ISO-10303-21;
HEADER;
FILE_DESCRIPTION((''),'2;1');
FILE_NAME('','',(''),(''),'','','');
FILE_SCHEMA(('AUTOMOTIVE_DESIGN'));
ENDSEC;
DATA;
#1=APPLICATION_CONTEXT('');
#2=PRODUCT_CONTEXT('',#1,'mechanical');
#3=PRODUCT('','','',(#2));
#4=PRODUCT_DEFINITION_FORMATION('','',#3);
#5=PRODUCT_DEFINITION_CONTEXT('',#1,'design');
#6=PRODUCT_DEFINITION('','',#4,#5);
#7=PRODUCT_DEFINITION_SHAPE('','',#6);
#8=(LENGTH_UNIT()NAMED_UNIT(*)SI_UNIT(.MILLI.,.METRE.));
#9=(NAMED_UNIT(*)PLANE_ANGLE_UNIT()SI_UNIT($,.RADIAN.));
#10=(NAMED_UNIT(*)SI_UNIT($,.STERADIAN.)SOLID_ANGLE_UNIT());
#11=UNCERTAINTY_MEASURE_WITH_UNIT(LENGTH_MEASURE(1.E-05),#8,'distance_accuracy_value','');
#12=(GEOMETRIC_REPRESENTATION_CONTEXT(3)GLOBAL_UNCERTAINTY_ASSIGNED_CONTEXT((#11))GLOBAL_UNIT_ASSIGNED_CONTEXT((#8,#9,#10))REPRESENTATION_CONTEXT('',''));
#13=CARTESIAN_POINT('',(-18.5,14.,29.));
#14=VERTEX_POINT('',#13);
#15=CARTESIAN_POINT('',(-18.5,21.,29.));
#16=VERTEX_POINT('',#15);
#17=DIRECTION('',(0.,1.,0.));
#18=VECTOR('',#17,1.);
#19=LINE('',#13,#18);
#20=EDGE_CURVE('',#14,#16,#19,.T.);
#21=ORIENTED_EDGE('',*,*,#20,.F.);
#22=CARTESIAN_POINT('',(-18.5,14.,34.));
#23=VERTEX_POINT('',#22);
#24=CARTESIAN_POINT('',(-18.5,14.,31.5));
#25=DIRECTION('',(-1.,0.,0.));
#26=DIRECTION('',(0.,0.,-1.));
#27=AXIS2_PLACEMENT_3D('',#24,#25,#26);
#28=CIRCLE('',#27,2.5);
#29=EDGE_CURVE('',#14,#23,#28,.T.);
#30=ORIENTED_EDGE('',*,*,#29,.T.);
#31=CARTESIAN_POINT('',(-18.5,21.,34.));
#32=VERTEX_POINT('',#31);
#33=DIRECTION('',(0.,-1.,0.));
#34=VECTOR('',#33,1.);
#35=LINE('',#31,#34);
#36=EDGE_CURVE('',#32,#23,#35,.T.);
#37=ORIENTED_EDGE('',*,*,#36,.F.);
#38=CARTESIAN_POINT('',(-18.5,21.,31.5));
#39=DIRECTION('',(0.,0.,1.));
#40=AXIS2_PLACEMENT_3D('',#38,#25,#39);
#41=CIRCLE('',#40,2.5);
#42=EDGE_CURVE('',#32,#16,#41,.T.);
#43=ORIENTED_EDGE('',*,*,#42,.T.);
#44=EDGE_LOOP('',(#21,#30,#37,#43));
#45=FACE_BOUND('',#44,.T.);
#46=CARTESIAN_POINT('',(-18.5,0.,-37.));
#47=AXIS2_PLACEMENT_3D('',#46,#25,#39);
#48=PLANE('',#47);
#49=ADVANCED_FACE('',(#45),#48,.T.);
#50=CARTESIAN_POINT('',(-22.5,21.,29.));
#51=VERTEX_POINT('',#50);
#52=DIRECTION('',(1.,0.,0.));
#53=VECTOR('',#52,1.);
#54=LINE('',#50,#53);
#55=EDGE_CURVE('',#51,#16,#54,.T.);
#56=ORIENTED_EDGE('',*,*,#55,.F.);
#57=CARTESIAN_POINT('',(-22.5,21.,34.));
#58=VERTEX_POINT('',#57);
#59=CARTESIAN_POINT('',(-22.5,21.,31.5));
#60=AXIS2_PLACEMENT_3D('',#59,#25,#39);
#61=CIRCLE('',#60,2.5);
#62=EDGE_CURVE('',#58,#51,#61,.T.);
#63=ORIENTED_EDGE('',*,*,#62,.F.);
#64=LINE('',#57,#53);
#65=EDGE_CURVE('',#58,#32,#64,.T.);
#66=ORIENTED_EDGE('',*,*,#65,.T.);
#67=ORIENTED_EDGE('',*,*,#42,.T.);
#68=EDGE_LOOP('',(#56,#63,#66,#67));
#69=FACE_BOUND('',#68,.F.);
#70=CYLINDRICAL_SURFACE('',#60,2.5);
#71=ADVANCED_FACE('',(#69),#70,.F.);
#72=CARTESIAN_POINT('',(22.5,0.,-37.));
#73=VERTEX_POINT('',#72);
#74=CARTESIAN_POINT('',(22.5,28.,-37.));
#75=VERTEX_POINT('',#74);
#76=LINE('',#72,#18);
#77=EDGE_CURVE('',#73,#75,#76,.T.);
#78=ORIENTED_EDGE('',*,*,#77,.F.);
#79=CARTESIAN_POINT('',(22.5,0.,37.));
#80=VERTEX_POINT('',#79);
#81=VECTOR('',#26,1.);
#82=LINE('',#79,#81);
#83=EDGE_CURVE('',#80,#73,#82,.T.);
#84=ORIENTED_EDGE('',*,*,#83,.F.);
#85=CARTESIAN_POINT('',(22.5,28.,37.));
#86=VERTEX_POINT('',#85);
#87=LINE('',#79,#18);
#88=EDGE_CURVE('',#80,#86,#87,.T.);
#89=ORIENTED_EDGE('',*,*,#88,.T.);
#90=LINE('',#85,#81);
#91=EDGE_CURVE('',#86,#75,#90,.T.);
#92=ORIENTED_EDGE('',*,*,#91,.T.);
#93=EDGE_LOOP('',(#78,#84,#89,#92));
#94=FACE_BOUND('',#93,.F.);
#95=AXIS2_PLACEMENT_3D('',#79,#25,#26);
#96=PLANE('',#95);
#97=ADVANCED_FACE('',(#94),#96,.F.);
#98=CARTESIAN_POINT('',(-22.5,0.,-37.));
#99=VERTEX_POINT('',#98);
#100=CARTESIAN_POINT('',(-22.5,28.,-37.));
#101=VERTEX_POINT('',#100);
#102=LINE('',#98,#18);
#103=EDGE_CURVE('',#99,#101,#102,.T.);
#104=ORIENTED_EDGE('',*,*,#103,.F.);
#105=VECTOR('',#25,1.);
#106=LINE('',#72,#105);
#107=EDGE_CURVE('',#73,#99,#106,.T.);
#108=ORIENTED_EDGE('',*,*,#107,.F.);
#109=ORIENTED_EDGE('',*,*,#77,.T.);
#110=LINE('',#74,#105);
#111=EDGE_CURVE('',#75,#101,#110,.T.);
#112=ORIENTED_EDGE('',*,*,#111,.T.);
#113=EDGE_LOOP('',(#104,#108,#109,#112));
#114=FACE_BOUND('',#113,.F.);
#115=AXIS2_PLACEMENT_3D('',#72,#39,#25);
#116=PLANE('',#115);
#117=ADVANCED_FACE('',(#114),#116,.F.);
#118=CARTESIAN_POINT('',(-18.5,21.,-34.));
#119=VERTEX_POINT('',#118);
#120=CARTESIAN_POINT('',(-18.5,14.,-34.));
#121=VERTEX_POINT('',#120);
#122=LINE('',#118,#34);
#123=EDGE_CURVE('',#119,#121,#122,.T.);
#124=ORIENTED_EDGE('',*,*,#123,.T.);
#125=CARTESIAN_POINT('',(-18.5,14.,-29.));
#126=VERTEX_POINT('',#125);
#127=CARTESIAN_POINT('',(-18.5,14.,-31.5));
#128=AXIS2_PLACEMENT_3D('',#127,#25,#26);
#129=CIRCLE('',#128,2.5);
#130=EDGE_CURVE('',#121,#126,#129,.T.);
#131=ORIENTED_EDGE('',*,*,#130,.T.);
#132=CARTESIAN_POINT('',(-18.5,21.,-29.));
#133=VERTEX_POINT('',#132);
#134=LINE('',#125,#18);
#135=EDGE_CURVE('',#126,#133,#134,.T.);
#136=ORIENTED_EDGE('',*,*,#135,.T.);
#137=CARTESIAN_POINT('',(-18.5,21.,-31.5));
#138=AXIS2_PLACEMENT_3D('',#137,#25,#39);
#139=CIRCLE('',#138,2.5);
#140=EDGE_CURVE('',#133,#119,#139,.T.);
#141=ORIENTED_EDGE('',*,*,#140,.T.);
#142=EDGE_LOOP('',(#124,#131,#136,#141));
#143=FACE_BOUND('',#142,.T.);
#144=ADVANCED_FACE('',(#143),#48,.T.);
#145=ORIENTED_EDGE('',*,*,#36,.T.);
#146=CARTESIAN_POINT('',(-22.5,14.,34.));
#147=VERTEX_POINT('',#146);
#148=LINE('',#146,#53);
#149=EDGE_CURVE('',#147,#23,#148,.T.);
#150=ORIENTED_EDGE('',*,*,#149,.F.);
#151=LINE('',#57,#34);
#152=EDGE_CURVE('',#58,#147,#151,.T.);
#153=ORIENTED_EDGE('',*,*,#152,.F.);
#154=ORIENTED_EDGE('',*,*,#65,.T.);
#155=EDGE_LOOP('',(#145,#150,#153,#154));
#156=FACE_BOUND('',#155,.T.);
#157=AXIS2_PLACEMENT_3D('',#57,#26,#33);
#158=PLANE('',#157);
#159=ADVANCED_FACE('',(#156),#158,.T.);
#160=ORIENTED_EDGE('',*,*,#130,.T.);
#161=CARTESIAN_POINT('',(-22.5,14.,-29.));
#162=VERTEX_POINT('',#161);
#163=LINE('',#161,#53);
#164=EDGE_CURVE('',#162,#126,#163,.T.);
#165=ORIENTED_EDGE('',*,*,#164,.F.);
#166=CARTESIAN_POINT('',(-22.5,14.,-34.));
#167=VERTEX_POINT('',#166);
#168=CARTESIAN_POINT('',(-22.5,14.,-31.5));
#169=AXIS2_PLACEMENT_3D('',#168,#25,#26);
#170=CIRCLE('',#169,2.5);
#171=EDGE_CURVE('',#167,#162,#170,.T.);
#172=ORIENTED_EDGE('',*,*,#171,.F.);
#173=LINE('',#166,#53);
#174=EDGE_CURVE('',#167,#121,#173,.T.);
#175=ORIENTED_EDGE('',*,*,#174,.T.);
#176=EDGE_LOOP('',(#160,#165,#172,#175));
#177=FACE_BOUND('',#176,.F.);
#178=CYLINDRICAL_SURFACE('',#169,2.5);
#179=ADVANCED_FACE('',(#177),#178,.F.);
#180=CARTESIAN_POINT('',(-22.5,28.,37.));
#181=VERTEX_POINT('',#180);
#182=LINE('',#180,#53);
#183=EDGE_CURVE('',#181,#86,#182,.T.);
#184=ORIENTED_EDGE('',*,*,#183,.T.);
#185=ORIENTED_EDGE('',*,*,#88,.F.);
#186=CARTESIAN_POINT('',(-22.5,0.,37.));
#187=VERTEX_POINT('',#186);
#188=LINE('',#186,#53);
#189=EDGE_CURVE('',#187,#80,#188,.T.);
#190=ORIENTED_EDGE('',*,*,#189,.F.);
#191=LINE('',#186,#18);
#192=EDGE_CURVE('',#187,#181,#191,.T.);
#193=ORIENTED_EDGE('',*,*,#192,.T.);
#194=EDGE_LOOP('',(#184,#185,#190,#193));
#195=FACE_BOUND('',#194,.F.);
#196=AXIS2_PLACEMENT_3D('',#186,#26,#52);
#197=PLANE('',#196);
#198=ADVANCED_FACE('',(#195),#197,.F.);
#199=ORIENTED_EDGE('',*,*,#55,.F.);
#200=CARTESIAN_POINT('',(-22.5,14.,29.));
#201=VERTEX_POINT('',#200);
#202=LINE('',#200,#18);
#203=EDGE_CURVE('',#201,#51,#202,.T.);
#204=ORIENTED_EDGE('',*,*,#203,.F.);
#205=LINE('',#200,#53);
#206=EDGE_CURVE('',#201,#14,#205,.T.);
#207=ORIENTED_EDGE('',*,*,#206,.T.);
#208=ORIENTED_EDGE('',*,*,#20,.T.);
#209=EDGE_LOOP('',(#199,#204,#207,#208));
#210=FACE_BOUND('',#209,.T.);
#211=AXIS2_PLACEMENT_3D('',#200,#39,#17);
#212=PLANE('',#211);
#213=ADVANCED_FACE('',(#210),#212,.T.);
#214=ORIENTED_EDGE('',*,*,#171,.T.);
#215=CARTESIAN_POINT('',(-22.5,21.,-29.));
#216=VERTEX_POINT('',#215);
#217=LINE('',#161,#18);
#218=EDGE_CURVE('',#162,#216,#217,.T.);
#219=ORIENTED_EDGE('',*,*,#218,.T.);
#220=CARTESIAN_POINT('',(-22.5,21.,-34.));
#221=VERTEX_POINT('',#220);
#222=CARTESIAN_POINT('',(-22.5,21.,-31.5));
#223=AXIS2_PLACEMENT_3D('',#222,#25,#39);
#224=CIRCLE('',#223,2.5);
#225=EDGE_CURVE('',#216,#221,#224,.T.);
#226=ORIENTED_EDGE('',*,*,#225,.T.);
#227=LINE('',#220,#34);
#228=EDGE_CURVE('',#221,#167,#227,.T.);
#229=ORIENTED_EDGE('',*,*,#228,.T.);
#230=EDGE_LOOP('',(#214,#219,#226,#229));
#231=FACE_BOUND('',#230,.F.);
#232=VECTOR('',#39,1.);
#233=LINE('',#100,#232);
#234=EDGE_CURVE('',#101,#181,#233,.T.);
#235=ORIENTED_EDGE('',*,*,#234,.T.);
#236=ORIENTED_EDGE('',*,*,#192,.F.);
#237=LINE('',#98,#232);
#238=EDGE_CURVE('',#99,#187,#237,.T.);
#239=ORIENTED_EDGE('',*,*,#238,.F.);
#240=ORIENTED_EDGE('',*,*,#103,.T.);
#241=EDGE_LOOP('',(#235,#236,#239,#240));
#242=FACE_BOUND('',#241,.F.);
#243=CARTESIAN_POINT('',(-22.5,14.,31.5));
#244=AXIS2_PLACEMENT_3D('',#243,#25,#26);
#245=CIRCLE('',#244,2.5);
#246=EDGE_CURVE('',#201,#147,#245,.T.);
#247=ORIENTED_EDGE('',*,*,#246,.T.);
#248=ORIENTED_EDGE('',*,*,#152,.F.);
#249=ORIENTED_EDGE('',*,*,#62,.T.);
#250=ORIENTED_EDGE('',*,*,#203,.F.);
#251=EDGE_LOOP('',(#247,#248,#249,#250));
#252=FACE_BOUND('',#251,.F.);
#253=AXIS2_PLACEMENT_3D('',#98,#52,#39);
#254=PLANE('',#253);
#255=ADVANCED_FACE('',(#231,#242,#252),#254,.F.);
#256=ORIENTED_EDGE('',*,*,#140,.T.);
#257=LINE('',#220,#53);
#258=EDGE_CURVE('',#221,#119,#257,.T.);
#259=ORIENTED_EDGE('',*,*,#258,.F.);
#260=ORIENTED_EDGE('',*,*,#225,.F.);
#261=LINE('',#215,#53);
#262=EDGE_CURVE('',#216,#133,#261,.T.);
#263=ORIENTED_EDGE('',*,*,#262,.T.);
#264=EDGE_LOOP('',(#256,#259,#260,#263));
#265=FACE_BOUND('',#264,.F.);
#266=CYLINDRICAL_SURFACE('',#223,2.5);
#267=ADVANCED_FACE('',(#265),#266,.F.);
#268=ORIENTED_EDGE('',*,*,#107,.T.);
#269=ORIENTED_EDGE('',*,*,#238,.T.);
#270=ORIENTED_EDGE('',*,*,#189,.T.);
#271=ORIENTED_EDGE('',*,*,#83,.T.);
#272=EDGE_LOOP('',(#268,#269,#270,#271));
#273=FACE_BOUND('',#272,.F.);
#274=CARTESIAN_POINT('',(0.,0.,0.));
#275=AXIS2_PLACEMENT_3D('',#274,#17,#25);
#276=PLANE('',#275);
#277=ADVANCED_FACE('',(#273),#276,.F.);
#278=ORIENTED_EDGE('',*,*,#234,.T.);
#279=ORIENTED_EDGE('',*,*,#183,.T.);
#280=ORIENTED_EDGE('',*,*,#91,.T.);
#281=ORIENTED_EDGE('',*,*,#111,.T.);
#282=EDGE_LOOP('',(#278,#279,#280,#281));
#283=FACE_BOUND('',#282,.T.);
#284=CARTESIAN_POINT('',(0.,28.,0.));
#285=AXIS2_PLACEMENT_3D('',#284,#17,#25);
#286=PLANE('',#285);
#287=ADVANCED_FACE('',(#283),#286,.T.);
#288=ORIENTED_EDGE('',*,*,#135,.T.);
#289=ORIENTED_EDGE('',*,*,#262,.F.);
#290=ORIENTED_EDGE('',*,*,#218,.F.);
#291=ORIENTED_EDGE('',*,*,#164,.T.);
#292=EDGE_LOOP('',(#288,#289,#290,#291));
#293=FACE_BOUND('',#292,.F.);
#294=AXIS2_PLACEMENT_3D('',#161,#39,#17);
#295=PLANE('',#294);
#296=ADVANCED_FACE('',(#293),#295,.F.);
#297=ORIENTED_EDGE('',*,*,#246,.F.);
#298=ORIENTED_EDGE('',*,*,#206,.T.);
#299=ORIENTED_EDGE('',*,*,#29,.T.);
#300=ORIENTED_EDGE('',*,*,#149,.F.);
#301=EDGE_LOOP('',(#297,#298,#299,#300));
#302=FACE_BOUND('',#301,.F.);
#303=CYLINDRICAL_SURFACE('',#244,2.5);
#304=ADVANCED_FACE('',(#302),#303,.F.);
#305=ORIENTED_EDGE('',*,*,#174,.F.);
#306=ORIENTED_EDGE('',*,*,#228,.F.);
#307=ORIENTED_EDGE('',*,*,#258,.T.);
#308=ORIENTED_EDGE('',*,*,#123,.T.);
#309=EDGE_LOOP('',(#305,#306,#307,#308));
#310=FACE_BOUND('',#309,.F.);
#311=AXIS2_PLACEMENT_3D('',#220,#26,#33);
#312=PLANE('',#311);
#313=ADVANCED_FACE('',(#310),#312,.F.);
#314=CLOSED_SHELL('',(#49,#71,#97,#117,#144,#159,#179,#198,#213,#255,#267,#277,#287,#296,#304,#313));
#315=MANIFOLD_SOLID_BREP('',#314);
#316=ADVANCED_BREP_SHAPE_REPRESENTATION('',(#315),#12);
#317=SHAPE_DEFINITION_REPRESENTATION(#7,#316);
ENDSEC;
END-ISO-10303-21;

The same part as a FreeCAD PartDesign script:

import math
import FreeCAD as App
import Part
import Sketcher
from FreeCAD import Vector
Q = App.Units.Quantity

doc = App.newDocument("Part")
params = doc.addObject("Spreadsheet::Sheet", "Params")
for row, (alias, value) in enumerate([
    ("sketch1_width", "45 mm"),
    ("sketch1_height", "74 mm"),
    ("pad1_length", "28 mm"),
    ("sketch2_radius", "2.5 mm"),
    ("sketch2_width", "7 mm"),
    ("pocket1_length", "4 mm"),
], start=1):
    params.set(f"A{row}", alias)
    params.set(f"B{row}", "=" + value)
    params.setAlias(f"B{row}", alias)

body = doc.addObject("PartDesign::Body", "Body")

# Sketch on XZ plane
sketch1 = body.newObject("Sketcher::SketchObject", "Sketch")
sketch1.AttachmentSupport = (doc.getObject("XZ_Plane"), [""])
sketch1.MapMode = "FlatFace"
sketch1.addGeometry([
    Part.LineSegment(Vector(-22, -37, 0), Vector(-22, 37, 0)),
    Part.LineSegment(Vector(-22, 37, 0), Vector(22, 37, 0)),
    Part.LineSegment(Vector(22, 37, 0), Vector(22, -37, 0)),
    Part.LineSegment(Vector(22, -37, 0), Vector(-22, -37, 0)),
], False)
sketch1.addConstraint([
    Sketcher.Constraint("Coincident", 0, 2, 1, 1),
    Sketcher.Constraint("Coincident", 1, 2, 2, 1),
    Sketcher.Constraint("Coincident", 2, 2, 3, 1),
    Sketcher.Constraint("Coincident", 3, 2, 0, 1),
    Sketcher.Constraint("Vertical", 0),
    Sketcher.Constraint("Horizontal", 1),
    Sketcher.Constraint("Vertical", 2),
    Sketcher.Constraint("Horizontal", 3),
    Sketcher.Constraint("Symmetric", 0, 2, 2, 2, -1, 1),
    Sketcher.Constraint("DistanceX", 1, 1, 1, 2, Q("45 mm")),
    Sketcher.Constraint("DistanceY", 0, 1, 0, 2, Q("74 mm")),
])
sketch1.setExpression("Constraints[9]", "Params.sketch1_width")
sketch1.setExpression("Constraints[10]", "Params.sketch1_height")
pad1 = body.newObject("PartDesign::Pad", "Pad")
pad1.Profile = sketch1
pad1.setExpression("Length", "Params.pad1_length")
pad1.Reversed = True

# Sketch on YZ plane
sketch2 = body.newObject("Sketcher::SketchObject", "Sketch001")
sketch2.AttachmentSupport = (doc.getObject("YZ_Plane"), [""])
sketch2.MapMode = "FlatFace"
sketch2.AttachmentOffset = App.Placement(Vector(0, 0, -22.5), App.Rotation())
sketch2.addGeometry([
    Part.LineSegment(Vector(21, -34, 0), Vector(14, -34, 0)),  # 0
    Part.ArcOfCircle(Part.Circle(Vector(14, -31.5, 0), Vector(0, 0, 1), 2.5), math.radians(90), math.radians(270)),  # 1
    Part.LineSegment(Vector(14, -29, 0), Vector(21, -29, 0)),  # 2
    Part.ArcOfCircle(Part.Circle(Vector(21, -31.5, 0), Vector(0, 0, 1), 2.5), math.radians(-90), math.radians(90)),  # 3
    Part.LineSegment(Vector(21, 29, 0), Vector(14, 29, 0)),  # 4
    Part.ArcOfCircle(Part.Circle(Vector(14, 31.5, 0), Vector(0, 0, 1), 2.5), math.radians(90), math.radians(270)),  # 5
    Part.LineSegment(Vector(14, 34, 0), Vector(21, 34, 0)),  # 6
    Part.ArcOfCircle(Part.Circle(Vector(21, 31.5, 0), Vector(0, 0, 1), 2.5), math.radians(-90), math.radians(90)),  # 7
], False)
sketch2.addConstraint([
    Sketcher.Constraint("Tangent", 0, 2, 1, 2),
    Sketcher.Constraint("Tangent", 1, 1, 2, 1),
    Sketcher.Constraint("Tangent", 2, 2, 3, 2),
    Sketcher.Constraint("Tangent", 3, 1, 0, 1),
    Sketcher.Constraint("Tangent", 4, 2, 5, 2),
    Sketcher.Constraint("Tangent", 5, 1, 6, 1),
    Sketcher.Constraint("Tangent", 6, 2, 7, 2),
    Sketcher.Constraint("Tangent", 7, 1, 4, 1),
    Sketcher.Constraint("Horizontal", 0),
    Sketcher.Constraint("Horizontal", 2),
    Sketcher.Constraint("Horizontal", 4),
    Sketcher.Constraint("Horizontal", 6),
    Sketcher.Constraint("Equal", 3, 5),
    Sketcher.Constraint("Symmetric", 1, 3, 5, 3, -1),
    Sketcher.Constraint("Vertical", 3, 3, 7, 3),
    Sketcher.Constraint("Radius", 1, Q("2.5 mm")),
    Sketcher.Constraint("DistanceX", 0, 2, 0, 1, Q("7 mm")),
    Sketcher.Constraint("DistanceX", -1, 1, 1, 3, Q("14 mm")),
    Sketcher.Constraint("DistanceY", 0, 2, -1, 1, Q("34 mm")),
])
sketch2.setExpression("Constraints[15]", "Params.sketch2_radius")
sketch2.setExpression("Constraints[16]", "Params.sketch2_width")
pocket1 = body.newObject("PartDesign::Pocket", "Pocket")
pocket1.Profile = sketch2
pocket1.setExpression("Length", "Params.pocket1_length")
pocket1.Reversed = True

doc.recompute()
